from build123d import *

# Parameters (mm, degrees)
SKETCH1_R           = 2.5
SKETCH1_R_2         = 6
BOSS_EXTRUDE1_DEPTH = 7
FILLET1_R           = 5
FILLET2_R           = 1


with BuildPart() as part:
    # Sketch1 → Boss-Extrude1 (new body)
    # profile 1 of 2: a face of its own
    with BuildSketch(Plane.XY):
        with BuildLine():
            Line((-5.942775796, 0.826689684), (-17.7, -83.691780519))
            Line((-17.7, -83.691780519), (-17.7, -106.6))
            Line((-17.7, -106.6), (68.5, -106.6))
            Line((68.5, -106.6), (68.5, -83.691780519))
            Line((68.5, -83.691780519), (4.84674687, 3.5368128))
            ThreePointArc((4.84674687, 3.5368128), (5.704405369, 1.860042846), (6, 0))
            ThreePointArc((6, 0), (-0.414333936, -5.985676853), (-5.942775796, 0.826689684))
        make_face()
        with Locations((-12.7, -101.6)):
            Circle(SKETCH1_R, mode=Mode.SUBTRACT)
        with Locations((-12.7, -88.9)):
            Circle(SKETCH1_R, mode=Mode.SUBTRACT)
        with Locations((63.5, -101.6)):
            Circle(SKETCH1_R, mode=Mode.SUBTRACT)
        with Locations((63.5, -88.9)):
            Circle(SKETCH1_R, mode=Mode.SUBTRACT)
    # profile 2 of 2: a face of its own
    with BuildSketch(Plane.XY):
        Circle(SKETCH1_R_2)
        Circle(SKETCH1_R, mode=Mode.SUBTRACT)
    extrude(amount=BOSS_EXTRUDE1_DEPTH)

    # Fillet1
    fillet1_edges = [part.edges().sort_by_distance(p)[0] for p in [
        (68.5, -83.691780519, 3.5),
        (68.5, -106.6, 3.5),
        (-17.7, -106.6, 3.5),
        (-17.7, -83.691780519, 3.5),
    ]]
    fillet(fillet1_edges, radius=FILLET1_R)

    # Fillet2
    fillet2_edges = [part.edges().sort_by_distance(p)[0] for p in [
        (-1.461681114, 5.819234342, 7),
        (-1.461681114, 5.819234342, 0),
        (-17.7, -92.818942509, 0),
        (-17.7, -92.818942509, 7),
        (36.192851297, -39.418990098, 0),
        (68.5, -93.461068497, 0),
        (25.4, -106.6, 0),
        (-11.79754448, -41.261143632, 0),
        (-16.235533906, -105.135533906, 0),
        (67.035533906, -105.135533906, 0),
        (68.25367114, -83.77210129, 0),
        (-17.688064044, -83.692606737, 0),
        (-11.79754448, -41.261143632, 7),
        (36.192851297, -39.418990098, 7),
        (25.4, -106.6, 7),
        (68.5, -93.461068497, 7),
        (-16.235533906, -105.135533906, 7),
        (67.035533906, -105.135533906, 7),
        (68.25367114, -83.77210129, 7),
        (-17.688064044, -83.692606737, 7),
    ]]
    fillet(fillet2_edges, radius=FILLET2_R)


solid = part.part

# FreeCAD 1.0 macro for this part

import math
import FreeCAD as App
import Part
import Sketcher
from FreeCAD import Vector


def edges_at(feature, points):
    """Names of the edges that pass closest to the given points."""
    edges = feature.Shape.Edges
    near = lambda p: min(range(len(edges)), key=lambda i: edges[i].distToShape(Part.Vertex(*p))[0])
    return sorted({f"Edge{near(p) + 1}" for p in points})

doc = App.newDocument("Part")
body = doc.addObject("PartDesign::Body", "Body")

# Sketch on XY plane
sketch1 = body.newObject("Sketcher::SketchObject", "Sketch")
sketch1.AttachmentSupport = (doc.getObject("XY_Plane"), [""])
sketch1.MapMode = "FlatFace"
sketch1.addGeometry([
    Part.LineSegment(Vector(-5.9, 0.8, 0), Vector(-17.7, -83.7, 0)),  # 0
    Part.LineSegment(Vector(-17.7, -83.7, 0), Vector(-17.7, -106.6, 0)),  # 1
    Part.LineSegment(Vector(-17.7, -106.6, 0), Vector(68.5, -106.6, 0)),  # 2
    Part.LineSegment(Vector(68.5, -106.6, 0), Vector(68.5, -83.7, 0)),  # 3
    Part.LineSegment(Vector(68.5, -83.7, 0), Vector(4.8, 3.5, 0)),  # 4
    Part.ArcOfCircle(Part.Circle(Vector(0, 0, 0), Vector(0, 0, 1), 6), math.radians(36), math.radians(172)),  # 5
    Part.Circle(Vector(-12.7, -101.6, 0), Vector(0, 0, 1), 2.5),  # 6
    Part.Circle(Vector(63.5, -101.6, 0), Vector(0, 0, 1), 2.5),  # 7
    Part.Circle(Vector(-12.7, -88.9, 0), Vector(0, 0, 1), 2.5),  # 8
    Part.Circle(Vector(63.5, -88.9, 0), Vector(0, 0, 1), 2.5),  # 9
    Part.Circle(Vector(0, 0, 0), Vector(0, 0, 1), 2.5),  # 10
], False)
sketch1.addConstraint([
    Sketcher.Constraint("Coincident", 0, 2, 1, 1),
    Sketcher.Constraint("Coincident", 1, 2, 2, 1),
    Sketcher.Constraint("Coincident", 2, 2, 3, 1),
    Sketcher.Constraint("Coincident", 3, 2, 4, 1),
    Sketcher.Constraint("Tangent", 4, 2, 5, 1),
    Sketcher.Constraint("Tangent", 5, 2, 0, 1),
    Sketcher.Constraint("Vertical", 1),
    Sketcher.Constraint("Horizontal", 2),
    Sketcher.Constraint("Vertical", 3),
    Sketcher.Constraint("Coincident", 5, 3, -1, 1),
    Sketcher.Constraint("Coincident", 10, 3, -1, 1),
    Sketcher.Constraint("Equal", 6, 7),
    Sketcher.Constraint("Equal", 7, 8),
    Sketcher.Constraint("Equal", 8, 9),
    Sketcher.Constraint("Equal", 9, 10),
    Sketcher.Constraint("Horizontal", 6, 3, 7, 3),
    Sketcher.Constraint("Horizontal", 8, 3, 9, 3),
    Sketcher.Constraint("Horizontal", 0, 2, 3, 2),
    Sketcher.Constraint("Vertical", 6, 3, 8, 3),
    Sketcher.Constraint("Vertical", 7, 3, 9, 3),
    Sketcher.Constraint("Diameter", 6, 5.0),
    Sketcher.Constraint("Radius", 5, 6.0),
    Sketcher.Constraint("DistanceX", 2, 1, 2, 2, 86.2),
    Sketcher.Constraint("DistanceX", 0, 2, 8, 3, 5.0),
    Sketcher.Constraint("DistanceY", 1, 2, 6, 3, 5.0),
    Sketcher.Constraint("DistanceX", 7, 3, 2, 2, 5.0),
    Sketcher.Constraint("DistanceX", 6, 3, -1, 1, 12.7),
    Sketcher.Constraint("DistanceY", 6, 3, -1, 1, 101.6),
    Sketcher.Constraint("DistanceY", 8, 3, -1, 1, 88.9),
    Sketcher.Constraint("DistanceY", 1, 2, 1, 1, 22.908219),
])
pad1 = body.newObject("PartDesign::Pad", "Pad")
pad1.Profile = sketch1
pad1.Length = 7
doc.recompute()

fillet = body.newObject("PartDesign::Fillet", "Fillet")
fillet.Base = (pad1, edges_at(pad1, [
    (68.5, -83.692, 3.5),
    (68.5, -106.6, 3.5),
    (-17.7, -106.6, 3.5),
    (-17.7, -83.692, 3.5),
]))
fillet.Radius = 5
doc.recompute()

fillet2 = body.newObject("PartDesign::Fillet", "Fillet001")
fillet2.Base = (fillet, edges_at(fillet, [
    (-1.462, 5.819, 7),
    (-1.462, 5.819, 0),
    (-17.7, -92.819, 0),
    (-17.7, -92.819, 7),
    (36.193, -39.419, 0),
    (68.5, -93.461, 0),
    (25.4, -106.6, 0),
    (-11.798, -41.261, 0),
    (-16.236, -105.136, 0),
    (67.036, -105.136, 0),
    (68.254, -83.772, 0),
    (-17.688, -83.693, 0),
    (-11.798, -41.261, 7),
    (36.193, -39.419, 7),
    (25.4, -106.6, 7),
    (68.5, -93.461, 7),
    (-16.236, -105.136, 7),
    (67.036, -105.136, 7),
    (68.254, -83.772, 7),
    (-17.688, -83.693, 7),
]))
fillet2.Radius = 1

doc.recompute()
